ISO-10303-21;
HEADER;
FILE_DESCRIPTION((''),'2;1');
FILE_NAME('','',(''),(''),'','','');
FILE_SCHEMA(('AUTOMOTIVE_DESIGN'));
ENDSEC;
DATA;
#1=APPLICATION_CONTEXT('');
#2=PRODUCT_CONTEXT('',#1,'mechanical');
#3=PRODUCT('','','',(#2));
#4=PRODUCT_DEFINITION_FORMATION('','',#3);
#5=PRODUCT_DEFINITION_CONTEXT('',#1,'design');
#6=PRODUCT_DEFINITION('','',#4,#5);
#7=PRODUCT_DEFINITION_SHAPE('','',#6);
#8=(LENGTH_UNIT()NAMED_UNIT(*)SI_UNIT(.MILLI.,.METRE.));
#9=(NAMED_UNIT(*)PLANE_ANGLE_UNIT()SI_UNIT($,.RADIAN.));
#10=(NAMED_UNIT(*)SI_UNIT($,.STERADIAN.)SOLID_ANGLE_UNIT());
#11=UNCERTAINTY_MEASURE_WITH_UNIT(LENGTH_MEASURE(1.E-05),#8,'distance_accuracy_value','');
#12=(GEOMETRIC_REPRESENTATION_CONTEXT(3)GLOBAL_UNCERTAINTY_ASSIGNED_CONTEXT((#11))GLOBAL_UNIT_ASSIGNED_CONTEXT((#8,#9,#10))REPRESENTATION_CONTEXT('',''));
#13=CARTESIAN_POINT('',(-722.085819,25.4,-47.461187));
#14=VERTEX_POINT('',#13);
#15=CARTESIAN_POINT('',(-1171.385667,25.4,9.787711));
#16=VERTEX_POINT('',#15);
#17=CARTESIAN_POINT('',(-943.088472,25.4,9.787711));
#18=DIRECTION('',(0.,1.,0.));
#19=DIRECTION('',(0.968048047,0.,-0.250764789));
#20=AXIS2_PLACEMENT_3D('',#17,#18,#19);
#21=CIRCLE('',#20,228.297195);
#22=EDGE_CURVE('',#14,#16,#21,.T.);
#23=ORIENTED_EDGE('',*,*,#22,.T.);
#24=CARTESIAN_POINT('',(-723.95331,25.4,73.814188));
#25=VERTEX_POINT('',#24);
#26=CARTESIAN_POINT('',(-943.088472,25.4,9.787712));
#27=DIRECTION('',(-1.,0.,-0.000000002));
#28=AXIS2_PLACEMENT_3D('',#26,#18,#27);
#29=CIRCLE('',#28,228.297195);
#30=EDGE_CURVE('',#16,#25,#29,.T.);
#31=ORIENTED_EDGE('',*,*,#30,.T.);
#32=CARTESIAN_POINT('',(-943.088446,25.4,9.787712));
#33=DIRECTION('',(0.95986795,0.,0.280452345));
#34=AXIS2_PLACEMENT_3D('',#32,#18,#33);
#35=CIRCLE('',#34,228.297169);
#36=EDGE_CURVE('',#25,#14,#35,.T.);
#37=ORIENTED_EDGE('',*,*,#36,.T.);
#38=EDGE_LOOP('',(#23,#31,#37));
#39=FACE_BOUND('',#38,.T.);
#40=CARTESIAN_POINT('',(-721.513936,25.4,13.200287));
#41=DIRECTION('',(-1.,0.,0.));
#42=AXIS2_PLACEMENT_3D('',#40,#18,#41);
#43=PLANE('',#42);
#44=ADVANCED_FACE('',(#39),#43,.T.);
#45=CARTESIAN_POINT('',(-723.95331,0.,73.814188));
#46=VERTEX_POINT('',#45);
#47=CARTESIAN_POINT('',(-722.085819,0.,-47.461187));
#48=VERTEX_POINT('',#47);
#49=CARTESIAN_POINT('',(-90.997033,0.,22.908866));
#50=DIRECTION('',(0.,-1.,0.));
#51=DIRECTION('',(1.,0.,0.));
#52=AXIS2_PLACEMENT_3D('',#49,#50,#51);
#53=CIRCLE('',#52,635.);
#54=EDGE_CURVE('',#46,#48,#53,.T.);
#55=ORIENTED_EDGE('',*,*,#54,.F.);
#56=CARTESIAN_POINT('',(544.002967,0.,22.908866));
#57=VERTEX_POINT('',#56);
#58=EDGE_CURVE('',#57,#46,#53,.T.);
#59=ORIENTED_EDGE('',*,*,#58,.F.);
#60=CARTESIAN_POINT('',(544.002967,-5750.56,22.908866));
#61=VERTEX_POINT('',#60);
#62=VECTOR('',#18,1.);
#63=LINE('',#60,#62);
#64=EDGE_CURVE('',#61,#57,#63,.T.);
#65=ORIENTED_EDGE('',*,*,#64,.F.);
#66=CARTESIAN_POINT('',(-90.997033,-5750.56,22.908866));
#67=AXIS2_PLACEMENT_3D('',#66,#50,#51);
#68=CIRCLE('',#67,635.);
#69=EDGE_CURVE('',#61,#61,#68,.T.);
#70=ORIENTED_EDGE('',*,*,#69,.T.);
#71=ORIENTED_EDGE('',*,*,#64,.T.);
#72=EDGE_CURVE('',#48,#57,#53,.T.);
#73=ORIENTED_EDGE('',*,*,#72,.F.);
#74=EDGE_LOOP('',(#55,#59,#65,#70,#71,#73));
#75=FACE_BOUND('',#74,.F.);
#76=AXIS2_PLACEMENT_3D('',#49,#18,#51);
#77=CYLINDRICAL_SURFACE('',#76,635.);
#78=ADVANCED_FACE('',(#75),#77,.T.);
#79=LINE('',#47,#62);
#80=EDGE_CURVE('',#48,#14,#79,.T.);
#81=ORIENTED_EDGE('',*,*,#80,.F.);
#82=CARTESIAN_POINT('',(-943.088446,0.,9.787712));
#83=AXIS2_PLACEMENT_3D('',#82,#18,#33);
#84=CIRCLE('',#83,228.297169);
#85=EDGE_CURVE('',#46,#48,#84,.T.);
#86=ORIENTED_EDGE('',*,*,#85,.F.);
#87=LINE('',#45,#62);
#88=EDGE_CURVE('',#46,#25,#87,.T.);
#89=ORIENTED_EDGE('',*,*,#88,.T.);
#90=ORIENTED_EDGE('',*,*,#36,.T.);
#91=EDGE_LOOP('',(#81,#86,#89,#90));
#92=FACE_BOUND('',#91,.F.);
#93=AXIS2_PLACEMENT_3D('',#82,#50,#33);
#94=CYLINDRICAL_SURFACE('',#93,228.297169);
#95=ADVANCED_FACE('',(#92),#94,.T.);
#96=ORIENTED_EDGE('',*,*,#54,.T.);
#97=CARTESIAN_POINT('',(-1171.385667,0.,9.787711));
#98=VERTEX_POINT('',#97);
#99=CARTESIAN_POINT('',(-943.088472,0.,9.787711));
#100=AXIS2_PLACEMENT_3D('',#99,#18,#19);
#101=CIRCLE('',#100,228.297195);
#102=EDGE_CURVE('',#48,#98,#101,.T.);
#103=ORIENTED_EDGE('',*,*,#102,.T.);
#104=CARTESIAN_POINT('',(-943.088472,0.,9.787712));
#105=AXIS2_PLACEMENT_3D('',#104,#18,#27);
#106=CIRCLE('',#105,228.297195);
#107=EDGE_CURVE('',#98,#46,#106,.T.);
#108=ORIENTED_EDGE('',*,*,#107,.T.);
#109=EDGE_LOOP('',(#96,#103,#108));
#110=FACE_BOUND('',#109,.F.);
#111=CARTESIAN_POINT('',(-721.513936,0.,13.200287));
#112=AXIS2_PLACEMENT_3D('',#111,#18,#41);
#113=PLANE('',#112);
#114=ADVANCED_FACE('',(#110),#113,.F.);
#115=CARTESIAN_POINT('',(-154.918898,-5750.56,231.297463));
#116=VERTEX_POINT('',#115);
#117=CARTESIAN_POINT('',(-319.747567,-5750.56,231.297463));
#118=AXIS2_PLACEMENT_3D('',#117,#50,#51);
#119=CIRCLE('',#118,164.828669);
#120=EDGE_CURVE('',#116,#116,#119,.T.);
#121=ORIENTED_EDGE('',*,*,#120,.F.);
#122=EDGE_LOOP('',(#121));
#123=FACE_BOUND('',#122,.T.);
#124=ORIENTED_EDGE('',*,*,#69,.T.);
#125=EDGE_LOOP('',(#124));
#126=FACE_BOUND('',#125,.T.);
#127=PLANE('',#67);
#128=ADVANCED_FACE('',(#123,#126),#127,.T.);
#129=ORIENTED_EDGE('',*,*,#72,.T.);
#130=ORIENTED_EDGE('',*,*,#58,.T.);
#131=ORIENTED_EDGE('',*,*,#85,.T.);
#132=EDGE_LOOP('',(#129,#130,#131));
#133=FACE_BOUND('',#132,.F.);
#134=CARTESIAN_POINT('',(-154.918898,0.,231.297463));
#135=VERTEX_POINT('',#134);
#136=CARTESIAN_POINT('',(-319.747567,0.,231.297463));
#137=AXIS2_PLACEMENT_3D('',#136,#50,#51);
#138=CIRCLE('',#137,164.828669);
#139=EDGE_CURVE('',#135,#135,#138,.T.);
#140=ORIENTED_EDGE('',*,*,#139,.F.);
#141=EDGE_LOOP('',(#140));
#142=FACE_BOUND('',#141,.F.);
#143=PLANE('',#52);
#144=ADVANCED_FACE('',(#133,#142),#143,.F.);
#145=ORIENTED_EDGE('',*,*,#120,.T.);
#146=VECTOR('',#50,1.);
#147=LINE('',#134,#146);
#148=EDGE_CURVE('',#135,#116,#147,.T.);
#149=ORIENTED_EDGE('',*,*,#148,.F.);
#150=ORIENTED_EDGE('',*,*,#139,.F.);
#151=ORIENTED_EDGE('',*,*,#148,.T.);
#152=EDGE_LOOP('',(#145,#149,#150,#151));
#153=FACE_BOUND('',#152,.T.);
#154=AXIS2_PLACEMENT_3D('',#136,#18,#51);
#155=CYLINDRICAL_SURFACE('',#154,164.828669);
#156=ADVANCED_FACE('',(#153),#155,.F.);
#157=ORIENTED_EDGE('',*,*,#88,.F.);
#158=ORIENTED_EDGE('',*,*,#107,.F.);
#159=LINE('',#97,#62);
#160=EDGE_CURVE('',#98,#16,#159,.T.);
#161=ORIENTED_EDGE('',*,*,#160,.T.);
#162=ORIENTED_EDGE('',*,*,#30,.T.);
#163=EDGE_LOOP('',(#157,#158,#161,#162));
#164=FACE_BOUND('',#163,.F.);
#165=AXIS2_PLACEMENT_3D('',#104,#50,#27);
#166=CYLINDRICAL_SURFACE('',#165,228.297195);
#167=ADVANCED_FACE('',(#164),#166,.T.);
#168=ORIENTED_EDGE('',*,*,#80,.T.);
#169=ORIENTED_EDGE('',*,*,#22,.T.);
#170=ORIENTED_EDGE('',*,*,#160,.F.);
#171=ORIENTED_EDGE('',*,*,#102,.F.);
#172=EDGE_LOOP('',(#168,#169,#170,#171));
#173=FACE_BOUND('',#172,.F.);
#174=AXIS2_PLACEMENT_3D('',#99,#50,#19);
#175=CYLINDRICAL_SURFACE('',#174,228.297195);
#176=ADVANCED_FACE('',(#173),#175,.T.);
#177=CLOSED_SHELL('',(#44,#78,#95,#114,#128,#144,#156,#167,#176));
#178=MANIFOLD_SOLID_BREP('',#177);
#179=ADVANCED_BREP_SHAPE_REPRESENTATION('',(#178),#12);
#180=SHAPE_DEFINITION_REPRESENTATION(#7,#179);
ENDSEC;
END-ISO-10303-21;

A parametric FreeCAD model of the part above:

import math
import FreeCAD as App
import Part
import Sketcher

V = App.Vector
Q = App.Units.Quantity

doc = App.newDocument("Part")
body = doc.addObject("PartDesign::Body", "Body")

# Sketch on XZ plane
sketch1 = body.newObject("Sketcher::SketchObject", "Sketch")
sketch1.AttachmentSupport = (doc.getObject("XZ_Plane"), [""])
sketch1.MapMode = "FlatFace"
sketch1.addGeometry(Part.Circle(V(-91, 23, 0), V(0, 0, 1), 635), False)
sketch1.addGeometry(Part.Circle(V(-320, 231, 0), V(0, 0, 1), 165), False)
sketch1.addConstraint(Sketcher.Constraint("Diameter", 0, Q("50 in")))
sketch1.addConstraint(Sketcher.Constraint("Diameter", 1, 329.657338))
sketch1.addConstraint(Sketcher.Constraint("DistanceX", 0, 3, -1, 1, 90.997033))
sketch1.addConstraint(Sketcher.Constraint("DistanceY", -1, 1, 0, 3, 22.908866))
sketch1.addConstraint(Sketcher.Constraint("DistanceX", 1, 3, -1, 1, 319.747567))
sketch1.addConstraint(Sketcher.Constraint("DistanceY", -1, 1, 1, 3, 231.297463))
pad1 = body.newObject("PartDesign::Pad", "Pad")
pad1.Profile = sketch1
pad1.Length = Q("226.4 in")

# Sketch on XZ plane
sketch2 = body.newObject("Sketcher::SketchObject", "Sketch001")
sketch2.AttachmentSupport = (doc.getObject("XZ_Plane"), [""])
sketch2.MapMode = "FlatFace"
sketch2.addGeometry(Part.ArcOfCircle(Part.Circle(V(-943.088446, 9.787712, 0), V(0, 0, 1), 228.297169), math.radians(-14.522775), math.radians(16.287204)), False)
sketch2.addGeometry(Part.ArcOfCircle(Part.Circle(V(-943.088472, 9.787711, 0), V(0, 0, 1), 228.297195), math.radians(180), math.radians(345.477227)), False)
sketch2.addGeometry(Part.ArcOfCircle(Part.Circle(V(-943.088472, 9.787712, 0), V(0, 0, 1), 228.297195), math.radians(16.287202), math.radians(180)), False)
sketch2.addConstraint(Sketcher.Constraint("Coincident", 0, 1, 1, 2))
sketch2.addConstraint(Sketcher.Constraint("Coincident", 1, 1, 2, 2))
sketch2.addConstraint(Sketcher.Constraint("Coincident", 2, 1, 0, 2))
sketch2.addConstraint(Sketcher.Constraint("Coincident", 2, 3, 1, 3))
sketch2.addConstraint(Sketcher.Constraint("Radius", 0, 228.297169))
sketch2.addConstraint(Sketcher.Constraint("Radius", 1, 228.297195))
sketch2.addConstraint(Sketcher.Constraint("DistanceY", 0, 1, 0, 3, 57.248899))
sketch2.addConstraint(Sketcher.Constraint("DistanceY", -1, 1, 0, 3, 9.787712))
sketch2.addConstraint(Sketcher.Constraint("DistanceX", 0, 1, -1, 1, 722.085819))
sketch2.addConstraint(Sketcher.Constraint("DistanceY", -1, 1, 1, 1, 9.787711))
sketch2.addConstraint(Sketcher.Constraint("DistanceX", 2, 1, -1, 1, 723.95331))
pad2 = body.newObject("PartDesign::Pad", "Pad001")
pad2.Profile = sketch2
pad2.Length = Q("1 in")
pad2.Reversed = True

# Sketch on XZ plane
sketch3 = body.newObject("Sketcher::SketchObject", "Sketch002")
sketch3.AttachmentSupport = (doc.getObject("XZ_Plane"), [""])
sketch3.MapMode = "FlatFace"
sketch3.addGeometry(Part.Circle(V(-91, 23, 0), V(0, 0, 1), 635), False)
sketch3.addGeometry(Part.Circle(V(-320, 231, 0), V(0, 0, 1), 165), False)
sketch3.addConstraint(Sketcher.Constraint("Diameter", 0, Q("50 in")))
sketch3.addConstraint(Sketcher.Constraint("Diameter", 1, 329.657338))
sketch3.addConstraint(Sketcher.Constraint("DistanceX", 0, 3, -1, 1, 90.997033))
sketch3.addConstraint(Sketcher.Constraint("DistanceY", -1, 1, 0, 3, 22.908866))
sketch3.addConstraint(Sketcher.Constraint("DistanceX", 1, 3, -1, 1, 319.747567))
sketch3.addConstraint(Sketcher.Constraint("DistanceY", -1, 1, 1, 3, 231.297463))
pad3 = body.newObject("PartDesign::Pad", "Pad002")
pad3.Profile = sketch3
pad3.Length = Q("1 in")

doc.recompute()
